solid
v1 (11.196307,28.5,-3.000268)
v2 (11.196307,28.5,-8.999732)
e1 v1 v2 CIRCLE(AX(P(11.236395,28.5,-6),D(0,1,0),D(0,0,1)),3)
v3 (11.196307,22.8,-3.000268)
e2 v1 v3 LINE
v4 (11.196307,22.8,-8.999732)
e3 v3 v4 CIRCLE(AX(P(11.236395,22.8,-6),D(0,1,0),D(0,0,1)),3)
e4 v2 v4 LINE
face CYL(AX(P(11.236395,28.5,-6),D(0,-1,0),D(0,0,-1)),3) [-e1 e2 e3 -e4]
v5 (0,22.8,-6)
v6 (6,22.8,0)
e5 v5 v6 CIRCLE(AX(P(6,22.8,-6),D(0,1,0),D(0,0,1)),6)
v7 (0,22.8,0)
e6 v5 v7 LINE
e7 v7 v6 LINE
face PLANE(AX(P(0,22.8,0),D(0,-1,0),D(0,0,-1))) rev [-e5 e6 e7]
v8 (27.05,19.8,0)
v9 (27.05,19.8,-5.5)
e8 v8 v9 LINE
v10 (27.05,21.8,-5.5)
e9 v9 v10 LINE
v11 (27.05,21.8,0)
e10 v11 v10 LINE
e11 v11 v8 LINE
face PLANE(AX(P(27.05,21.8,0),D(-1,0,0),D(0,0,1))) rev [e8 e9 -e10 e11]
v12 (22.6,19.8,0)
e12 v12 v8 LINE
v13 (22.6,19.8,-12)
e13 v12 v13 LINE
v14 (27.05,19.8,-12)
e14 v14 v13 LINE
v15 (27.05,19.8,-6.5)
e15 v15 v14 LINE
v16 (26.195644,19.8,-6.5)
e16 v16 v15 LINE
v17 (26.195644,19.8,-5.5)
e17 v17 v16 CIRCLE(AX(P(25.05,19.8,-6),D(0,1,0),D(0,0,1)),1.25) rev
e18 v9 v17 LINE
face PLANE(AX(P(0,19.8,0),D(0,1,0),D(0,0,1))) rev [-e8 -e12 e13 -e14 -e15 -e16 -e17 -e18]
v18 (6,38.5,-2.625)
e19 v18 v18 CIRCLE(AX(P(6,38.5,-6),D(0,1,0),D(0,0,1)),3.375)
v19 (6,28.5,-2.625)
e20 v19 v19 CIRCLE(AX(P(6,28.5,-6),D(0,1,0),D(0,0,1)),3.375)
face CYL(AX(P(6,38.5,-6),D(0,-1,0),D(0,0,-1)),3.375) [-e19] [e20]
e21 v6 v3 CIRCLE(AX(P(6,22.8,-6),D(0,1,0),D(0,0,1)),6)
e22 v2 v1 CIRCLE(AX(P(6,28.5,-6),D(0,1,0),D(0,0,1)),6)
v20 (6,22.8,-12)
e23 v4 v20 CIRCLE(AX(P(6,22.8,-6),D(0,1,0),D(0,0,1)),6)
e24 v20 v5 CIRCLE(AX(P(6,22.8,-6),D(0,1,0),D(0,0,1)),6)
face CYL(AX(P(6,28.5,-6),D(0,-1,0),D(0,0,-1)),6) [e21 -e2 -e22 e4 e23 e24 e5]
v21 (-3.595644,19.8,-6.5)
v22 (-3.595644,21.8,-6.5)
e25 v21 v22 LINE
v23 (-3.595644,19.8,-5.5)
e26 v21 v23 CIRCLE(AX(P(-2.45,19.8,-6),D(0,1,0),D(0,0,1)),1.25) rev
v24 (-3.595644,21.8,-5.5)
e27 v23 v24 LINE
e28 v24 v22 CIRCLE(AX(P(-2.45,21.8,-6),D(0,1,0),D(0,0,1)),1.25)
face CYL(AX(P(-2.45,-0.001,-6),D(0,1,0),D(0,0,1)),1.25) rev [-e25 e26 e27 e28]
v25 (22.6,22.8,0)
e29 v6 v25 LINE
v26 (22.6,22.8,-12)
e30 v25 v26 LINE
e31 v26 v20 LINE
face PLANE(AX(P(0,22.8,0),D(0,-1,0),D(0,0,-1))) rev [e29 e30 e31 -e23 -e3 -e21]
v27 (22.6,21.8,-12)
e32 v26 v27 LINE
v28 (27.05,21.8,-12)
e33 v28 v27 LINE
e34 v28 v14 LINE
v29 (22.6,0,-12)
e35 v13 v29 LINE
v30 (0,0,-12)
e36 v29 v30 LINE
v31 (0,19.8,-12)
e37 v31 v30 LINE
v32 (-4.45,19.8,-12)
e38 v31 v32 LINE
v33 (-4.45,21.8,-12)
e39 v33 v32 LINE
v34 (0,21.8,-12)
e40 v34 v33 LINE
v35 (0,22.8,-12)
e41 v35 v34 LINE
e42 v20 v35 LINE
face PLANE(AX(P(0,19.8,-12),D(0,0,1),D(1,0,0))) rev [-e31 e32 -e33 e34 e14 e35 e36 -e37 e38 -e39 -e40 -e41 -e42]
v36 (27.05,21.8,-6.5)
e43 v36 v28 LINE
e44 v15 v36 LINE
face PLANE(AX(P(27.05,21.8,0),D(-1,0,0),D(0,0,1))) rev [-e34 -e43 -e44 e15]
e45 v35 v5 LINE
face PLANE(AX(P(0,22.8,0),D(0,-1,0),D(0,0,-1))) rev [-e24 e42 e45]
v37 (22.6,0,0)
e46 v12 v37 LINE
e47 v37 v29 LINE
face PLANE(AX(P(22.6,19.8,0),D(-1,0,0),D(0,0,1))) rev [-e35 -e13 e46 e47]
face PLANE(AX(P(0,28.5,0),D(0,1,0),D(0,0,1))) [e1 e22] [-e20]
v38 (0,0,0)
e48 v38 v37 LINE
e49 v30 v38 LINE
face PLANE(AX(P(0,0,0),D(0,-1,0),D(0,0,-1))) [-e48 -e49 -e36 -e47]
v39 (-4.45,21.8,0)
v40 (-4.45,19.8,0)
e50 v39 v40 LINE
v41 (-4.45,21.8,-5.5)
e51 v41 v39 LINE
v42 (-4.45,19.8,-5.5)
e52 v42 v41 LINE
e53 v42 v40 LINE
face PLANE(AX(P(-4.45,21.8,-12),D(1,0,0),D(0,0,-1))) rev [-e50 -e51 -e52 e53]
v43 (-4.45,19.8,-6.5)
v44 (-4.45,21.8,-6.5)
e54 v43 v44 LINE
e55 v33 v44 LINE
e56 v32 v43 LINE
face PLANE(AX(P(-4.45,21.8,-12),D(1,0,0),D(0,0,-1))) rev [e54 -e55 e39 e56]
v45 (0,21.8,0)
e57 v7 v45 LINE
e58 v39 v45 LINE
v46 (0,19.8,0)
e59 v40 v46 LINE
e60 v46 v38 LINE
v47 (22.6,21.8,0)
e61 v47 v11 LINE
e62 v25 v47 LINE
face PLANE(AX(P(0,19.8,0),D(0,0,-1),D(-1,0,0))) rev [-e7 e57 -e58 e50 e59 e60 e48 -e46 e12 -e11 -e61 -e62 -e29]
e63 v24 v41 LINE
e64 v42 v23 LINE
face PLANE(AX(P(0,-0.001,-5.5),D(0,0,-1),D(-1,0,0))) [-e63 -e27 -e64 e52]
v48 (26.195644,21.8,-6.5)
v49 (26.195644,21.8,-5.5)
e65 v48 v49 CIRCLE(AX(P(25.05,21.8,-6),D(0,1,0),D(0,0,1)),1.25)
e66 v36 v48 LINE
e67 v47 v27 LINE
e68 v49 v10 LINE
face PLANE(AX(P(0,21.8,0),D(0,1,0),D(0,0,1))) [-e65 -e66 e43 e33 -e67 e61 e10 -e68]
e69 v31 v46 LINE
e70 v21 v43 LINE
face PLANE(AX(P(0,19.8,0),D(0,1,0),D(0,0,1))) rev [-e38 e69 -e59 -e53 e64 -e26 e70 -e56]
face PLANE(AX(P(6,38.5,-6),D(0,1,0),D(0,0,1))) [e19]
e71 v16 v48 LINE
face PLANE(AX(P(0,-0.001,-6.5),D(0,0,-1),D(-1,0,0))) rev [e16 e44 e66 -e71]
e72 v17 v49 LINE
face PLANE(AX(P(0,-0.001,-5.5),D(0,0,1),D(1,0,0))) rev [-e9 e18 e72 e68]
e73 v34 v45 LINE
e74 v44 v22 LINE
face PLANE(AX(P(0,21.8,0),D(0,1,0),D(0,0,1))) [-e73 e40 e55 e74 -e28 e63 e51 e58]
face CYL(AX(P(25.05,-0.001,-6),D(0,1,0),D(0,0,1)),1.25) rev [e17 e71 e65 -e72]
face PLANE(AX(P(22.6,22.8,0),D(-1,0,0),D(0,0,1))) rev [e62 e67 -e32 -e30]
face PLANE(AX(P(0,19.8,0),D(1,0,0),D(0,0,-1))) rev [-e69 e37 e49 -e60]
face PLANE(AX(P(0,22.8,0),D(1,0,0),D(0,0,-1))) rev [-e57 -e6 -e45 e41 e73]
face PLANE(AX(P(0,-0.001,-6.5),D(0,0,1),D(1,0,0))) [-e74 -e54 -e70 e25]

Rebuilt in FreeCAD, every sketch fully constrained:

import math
import FreeCAD as App
import Part
import Sketcher

V = App.Vector
Q = App.Units.Quantity


def add_polygon(sketch, points):
    """Adds a closed chain of lines whose ends are joined by coincident constraints."""
    first, n = sketch.GeometryCount, len(points)
    for a, b in zip(points, points[1:] + points[:1]):
        sketch.addGeometry(Part.LineSegment(App.Vector(*a, 0), App.Vector(*b, 0)), False)
    for i in range(n):
        sketch.addConstraint(Sketcher.Constraint("Coincident", first + i, 2, first + (i + 1) % n, 1))

doc = App.newDocument("Part")
body = doc.addObject("PartDesign::Body", "Body")
body.AllowCompound = True

sketch1 = body.newObject("Sketcher::SketchObject", "Sketch")
sketch1.AttachmentSupport = (doc.getObject("XZ_Plane"), [""])
sketch1.MapMode = "FlatFace"
add_polygon(sketch1, [(0, -12), (0, 0), (23, 0), (23, -12)])
sketch1.addConstraint([
    Sketcher.Constraint("Vertical", 0),
    Sketcher.Constraint("Horizontal", 1),
    Sketcher.Constraint("Vertical", 2),
    Sketcher.Constraint("Horizontal", 3),
    Sketcher.Constraint("Coincident", 0, 2, -1, 1),
    Sketcher.Constraint("DistanceY", 0, 1, 0, 2, Q("12 mm")),
    Sketcher.Constraint("DistanceX", 1, 1, 1, 2, Q("22.6 mm")),
])
pad1 = body.newObject("PartDesign::Pad", "Pad")
pad1.Profile = sketch1
pad1.Length = 19.8
pad1.Reversed = True

sketch2 = body.newObject("Sketcher::SketchObject", "Sketch001")
sketch2.AttachmentSupport = (doc.getObject("XZ_Plane"), [""])
sketch2.MapMode = "FlatFace"
sketch2.AttachmentOffset = App.Placement(V(0, 0, -19.8), App.Rotation())
add_polygon(sketch2, [(-4, -12), (-4, 0), (27, 0), (27, -12)])
sketch2.addConstraint([
    Sketcher.Constraint("Vertical", 0),
    Sketcher.Constraint("Horizontal", 1),
    Sketcher.Constraint("Vertical", 2),
    Sketcher.Constraint("Horizontal", 3),
    Sketcher.Constraint("PointOnObject", 0, 2, -1),
    Sketcher.Constraint("DistanceY", 0, 1, 0, 2, Q("12 mm")),
    Sketcher.Constraint("DistanceX", 1, 1, 1, 2, Q("31.5 mm")),
    Sketcher.Constraint("DistanceX", 0, 2, -1, 1, Q("4.45 mm")),
])
pad2 = body.newObject("PartDesign::Pad", "Pad001")
pad2.Profile = sketch2
pad2.Length = 2
pad2.Reversed = True

sketch3 = body.newObject("Sketcher::SketchObject", "Sketch002")
sketch3.AttachmentSupport = (doc.getObject("XZ_Plane"), [""])
sketch3.MapMode = "FlatFace"
sketch3.AttachmentOffset = App.Placement(V(0, 0, -21.8), App.Rotation())
add_polygon(sketch3, [(0, -12), (0, 0), (23, 0), (23, -12)])
sketch3.addConstraint([
    Sketcher.Constraint("Vertical", 0),
    Sketcher.Constraint("Horizontal", 1),
    Sketcher.Constraint("Vertical", 2),
    Sketcher.Constraint("Horizontal", 3),
    Sketcher.Constraint("Coincident", 0, 2, -1, 1),
    Sketcher.Constraint("DistanceY", 0, 1, 0, 2, Q("12 mm")),
    Sketcher.Constraint("DistanceX", 1, 1, 1, 2, Q("22.6 mm")),
])
pad3 = body.newObject("PartDesign::Pad", "Pad002")
pad3.Profile = sketch3
pad3.Length = 1
pad3.Reversed = True

sketch4 = body.newObject("Sketcher::SketchObject", "Sketch003")
sketch4.AttachmentSupport = (doc.getObject("XZ_Plane"), [""])
sketch4.MapMode = "FlatFace"
sketch4.AttachmentOffset = App.Placement(V(0, 0, -22.8), App.Rotation())
sketch4.addGeometry([
    Part.ArcOfCircle(Part.Circle(V(6, -6, 0), V(0, 0, 1), 6), math.radians(30), math.radians(330)),
    Part.ArcOfCircle(Part.Circle(V(11.2, -6, 0), V(0, 0, 1), 3), math.radians(-91), math.radians(91)),
], False)
sketch4.addConstraint([
    Sketcher.Constraint("Coincident", 0, 1, 1, 2),
    Sketcher.Constraint("Coincident", 1, 1, 0, 2),
    Sketcher.Constraint("Horizontal", 0, 3, 1, 3),
    Sketcher.Constraint("Radius", 0, Q("6 mm")),
    Sketcher.Constraint("Radius", 1, Q("3 mm")),
    Sketcher.Constraint("DistanceX", -1, 1, 0, 3, Q("6 mm")),
    Sketcher.Constraint("DistanceY", 0, 3, -1, 1, Q("6 mm")),
    Sketcher.Constraint("DistanceX", 0, 1, 1, 3, Q("0.040088 mm")),
])
pad4 = body.newObject("PartDesign::Pad", "Pad003")
pad4.Profile = sketch4
pad4.Length = 5.7
pad4.Reversed = True

sketch5 = body.newObject("Sketcher::SketchObject", "Sketch004")
sketch5.AttachmentSupport = (doc.getObject("XZ_Plane"), [""])
sketch5.MapMode = "FlatFace"
sketch5.AttachmentOffset = App.Placement(V(0, 0, -28.5), App.Rotation())
sketch5.addGeometry(Part.Circle(V(6, -6, 0), V(0, 0, 1), 3.4), False)
sketch5.addConstraint([
    Sketcher.Constraint("Diameter", 0, Q("6.75 mm")),
    Sketcher.Constraint("DistanceX", -1, 1, 0, 3, Q("6 mm")),
    Sketcher.Constraint("DistanceY", 0, 3, -1, 1, Q("6 mm")),
])
pad5 = body.newObject("PartDesign::Pad", "Pad004")
pad5.Profile = sketch5
pad5.Length = 10
pad5.Reversed = True

sketch6 = body.newObject("Sketcher::SketchObject", "Sketch005")
sketch6.AttachmentSupport = (doc.getObject("XZ_Plane"), [""])
sketch6.MapMode = "FlatFace"
sketch6.AttachmentOffset = App.Placement(V(0, 0, -21.8), App.Rotation())
sketch6.addGeometry([
    Part.LineSegment(V(-4.5, -5.5, 0), V(-3.6, -5.5, 0)),
    Part.ArcOfCircle(Part.Circle(V(-2.4, -6, 0), V(0, 0, 1), 1.3), math.radians(156), math.radians(180)),
    Part.LineSegment(V(-3.7, -6, 0), V(-4.5, -6, 0)),
    Part.LineSegment(V(-4.5, -6, 0), V(-4.5, -5.5, 0)),
], False)
sketch6.addConstraint([
    Sketcher.Constraint("Coincident", 0, 2, 1, 1),
    Sketcher.Constraint("Coincident", 1, 2, 2, 1),
    Sketcher.Constraint("Coincident", 2, 2, 3, 1),
    Sketcher.Constraint("Coincident", 3, 2, 0, 1),
    Sketcher.Constraint("Horizontal", 0),
    Sketcher.Constraint("Horizontal", 2),
    Sketcher.Constraint("Vertical", 3),
    Sketcher.Constraint("Radius", 1, Q("1.25 mm")),
    Sketcher.Constraint("DistanceY", 3, 1, 3, 2, Q("0.5 mm")),
    Sketcher.Constraint("DistanceY", 1, 3, -1, 1, Q("6 mm")),
    Sketcher.Constraint("DistanceY", 1, 2, -1, 1, Q("6 mm")),
    Sketcher.Constraint("DistanceX", 2, 2, 1, 3, Q("2 mm")),
    Sketcher.Constraint("DistanceX", 1, 2, -1, 1, Q("3.7 mm")),
])
pocket1 = body.newObject("PartDesign::Pocket", "Pocket")
pocket1.Profile = sketch6
pocket1.Type = "UpToFirst"
pocket1.Reversed = True

sketch7 = body.newObject("Sketcher::SketchObject", "Sketch006")
sketch7.AttachmentSupport = (doc.getObject("XZ_Plane"), [""])
sketch7.MapMode = "FlatFace"
sketch7.AttachmentOffset = App.Placement(V(0, 0, -21.8), App.Rotation())
sketch7.addGeometry([
    Part.ArcOfCircle(Part.Circle(V(-2.4, -6, 0), V(0, 0, 1), 1.3), math.radians(-180), math.radians(-156)),
    Part.LineSegment(V(-3.6, -6.5, 0), V(-4.5, -6.5, 0)),
    Part.LineSegment(V(-4.5, -6.5, 0), V(-4.5, -6, 0)),
    Part.LineSegment(V(-4.5, -6, 0), V(-3.7, -6, 0)),
], False)
sketch7.addConstraint([
    Sketcher.Constraint("Coincident", 0, 2, 1, 1),
    Sketcher.Constraint("Coincident", 1, 2, 2, 1),
    Sketcher.Constraint("Coincident", 2, 2, 3, 1),
    Sketcher.Constraint("Coincident", 3, 2, 0, 1),
    Sketcher.Constraint("Horizontal", 1),
    Sketcher.Constraint("Vertical", 2),
    Sketcher.Constraint("Horizontal", 3),
    Sketcher.Constraint("Horizontal", 0, 3, 2, 2),
    Sketcher.Constraint("Radius", 0, Q("1.25 mm")),
    Sketcher.Constraint("DistanceY", 2, 1, 2, 2, Q("0.5 mm")),
    Sketcher.Constraint("DistanceY", 0, 3, -1, 1, Q("6 mm")),
    Sketcher.Constraint("DistanceX", 1, 2, 0, 3, Q("2 mm")),
    Sketcher.Constraint("DistanceX", 3, 2, -1, 1, Q("3.7 mm")),
])
pocket2 = body.newObject("PartDesign::Pocket", "Pocket001")
pocket2.Profile = sketch7
pocket2.Type = "UpToFirst"
pocket2.Reversed = True

sketch8 = body.newObject("Sketcher::SketchObject", "Sketch007")
sketch8.AttachmentSupport = (doc.getObject("XZ_Plane"), [""])
sketch8.MapMode = "FlatFace"
sketch8.AttachmentOffset = App.Placement(V(0, 0, -21.8), App.Rotation())
sketch8.addGeometry([
    Part.ArcOfCircle(Part.Circle(V(-2.5, -6, 0), V(0, 0, 1), 1.2), math.radians(0), math.radians(156)),
    Part.LineSegment(V(-1.2, -6, 0), V(-2.4, -6, 0)),
    Part.LineSegment(V(-2.4, -6, 0), V(-2.4, -5.5, 0)),
    Part.LineSegment(V(-2.4, -5.5, 0), V(-3.6, -5.5, 0)),
], False)
sketch8.addConstraint([
    Sketcher.Constraint("Coincident", 0, 1, 1, 1),
    Sketcher.Constraint("Coincident", 1, 2, 2, 1),
    Sketcher.Constraint("Coincident", 2, 2, 3, 1),
    Sketcher.Constraint("Coincident", 3, 2, 0, 2),
    Sketcher.Constraint("Horizontal", 1),
    Sketcher.Constraint("Vertical", 2),
    Sketcher.Constraint("Horizontal", 3),
    Sketcher.Constraint("Radius", 0, Q("1.25 mm")),
    Sketcher.Constraint("DistanceY", 2, 1, 2, 2, Q("0.5 mm")),
    Sketcher.Constraint("DistanceY", 0, 3, -1, 1, Q("6 mm")),
    Sketcher.Constraint("DistanceY", 0, 1, -1, 1, Q("6 mm")),
    Sketcher.Constraint("DistanceX", 0, 1, -1, 1, Q("1.2 mm")),
    Sketcher.Constraint("DistanceX", 3, 2, 3, 1, Q("1.146561 mm")),
])
pocket3 = body.newObject("PartDesign::Pocket", "Pocket002")
pocket3.Profile = sketch8
pocket3.Type = "UpToFirst"
pocket3.Reversed = True

sketch9 = body.newObject("Sketcher::SketchObject", "Sketch008")
sketch9.AttachmentSupport = (doc.getObject("XZ_Plane"), [""])
sketch9.MapMode = "FlatFace"
sketch9.AttachmentOffset = App.Placement(V(0, 0, -21.8), App.Rotation())
sketch9.addGeometry([
    Part.LineSegment(V(-2.4, -5.5, 0), V(-2.4, -6, 0)),
    Part.LineSegment(V(-2.4, -6, 0), V(-3.7, -6, 0)),
    Part.ArcOfCircle(Part.Circle(V(-2.4, -6, 0), V(0, 0, 1), 1.3), math.radians(156), math.radians(180)),
    Part.LineSegment(V(-3.6, -5.5, 0), V(-2.4, -5.5, 0)),
], False)
sketch9.addConstraint([
    Sketcher.Constraint("Coincident", 0, 2, 1, 1),
    Sketcher.Constraint("Coincident", 1, 2, 2, 2),
    Sketcher.Constraint("Coincident", 2, 1, 3, 1),
    Sketcher.Constraint("Coincident", 3, 2, 0, 1),
    Sketcher.Constraint("Vertical", 0),
    Sketcher.Constraint("Horizontal", 1),
    Sketcher.Constraint("Horizontal", 3),
    Sketcher.Constraint("Horizontal", 2, 3, 0, 2),
    Sketcher.Constraint("Radius", 2, Q("1.25 mm")),
    Sketcher.Constraint("DistanceY", 0, 2, 0, 1, Q("0.5 mm")),
    Sketcher.Constraint("DistanceY", 2, 3, -1, 1, Q("6 mm")),
    Sketcher.Constraint("DistanceX", 1, 2, -1, 1, Q("3.7 mm")),
    Sketcher.Constraint("DistanceX", 3, 1, 3, 2, Q("1.146561 mm")),
])
pocket4 = body.newObject("PartDesign::Pocket", "Pocket003")
pocket4.Profile = sketch9
pocket4.Type = "UpToFirst"
pocket4.Reversed = True

sketch10 = body.newObject("Sketcher::SketchObject", "Sketch009")
sketch10.AttachmentSupport = (doc.getObject("XZ_Plane"), [""])
sketch10.MapMode = "FlatFace"
sketch10.AttachmentOffset = App.Placement(V(0, 0, -21.8), App.Rotation())
sketch10.addGeometry([
    Part.LineSegment(V(-2.4, -6, 0), V(-1.2, -6, 0)),
    Part.ArcOfCircle(Part.Circle(V(-2.5, -6, 0), V(0, 0, 1), 1.2), math.radians(-156), math.radians(0)),
    Part.LineSegment(V(-3.6, -6.5, 0), V(-2.4, -6.5, 0)),
    Part.LineSegment(V(-2.4, -6.5, 0), V(-2.4, -6, 0)),
], False)
sketch10.addConstraint([
    Sketcher.Constraint("Coincident", 0, 2, 1, 2),
    Sketcher.Constraint("Coincident", 1, 1, 2, 1),
    Sketcher.Constraint("Coincident", 2, 2, 3, 1),
    Sketcher.Constraint("Coincident", 3, 2, 0, 1),
    Sketcher.Constraint("Horizontal", 0),
    Sketcher.Constraint("Horizontal", 2),
    Sketcher.Constraint("Vertical", 3),
    Sketcher.Constraint("Horizontal", 1, 3, 0, 2),
    Sketcher.Constraint("Radius", 1, Q("1.25 mm")),
    Sketcher.Constraint("DistanceY", 3, 1, 3, 2, Q("0.5 mm")),
    Sketcher.Constraint("DistanceY", 1, 3, -1, 1, Q("6 mm")),
    Sketcher.Constraint("DistanceX", 0, 2, -1, 1, Q("1.2 mm")),
    Sketcher.Constraint("DistanceX", 2, 1, 2, 2, Q("1.146561 mm")),
])
pocket5 = body.newObject("PartDesign::Pocket", "Pocket004")
pocket5.Profile = sketch10
pocket5.Type = "UpToFirst"
pocket5.Reversed = True

sketch11 = body.newObject("Sketcher::SketchObject", "Sketch010")
sketch11.AttachmentSupport = (doc.getObject("XZ_Plane"), [""])
sketch11.MapMode = "FlatFace"
sketch11.AttachmentOffset = App.Placement(V(0, 0, -21.8), App.Rotation())
sketch11.addGeometry([
    Part.LineSegment(V(-3.7, -6, 0), V(-2.4, -6, 0)),
    Part.LineSegment(V(-2.4, -6, 0), V(-2.4, -6.5, 0)),
    Part.LineSegment(V(-2.4, -6.5, 0), V(-3.6, -6.5, 0)),
    Part.ArcOfCircle(Part.Circle(V(-2.4, -6, 0), V(0, 0, 1), 1.3), math.radians(-180), math.radians(-156)),
], False)
sketch11.addConstraint([
    Sketcher.Constraint("Coincident", 0, 2, 1, 1),
    Sketcher.Constraint("Coincident", 1, 2, 2, 1),
    Sketcher.Constraint("Coincident", 2, 2, 3, 2),
    Sketcher.Constraint("Coincident", 3, 1, 0, 1),
    Sketcher.Constraint("Horizontal", 0),
    Sketcher.Constraint("Vertical", 1),
    Sketcher.Constraint("Horizontal", 2),
    Sketcher.Constraint("Horizontal", 3, 3, 0, 2),
    Sketcher.Constraint("Radius", 3, Q("1.25 mm")),
    Sketcher.Constraint("DistanceY", 1, 2, 1, 1, Q("0.5 mm")),
    Sketcher.Constraint("DistanceY", 3, 3, -1, 1, Q("6 mm")),
    Sketcher.Constraint("DistanceX", 3, 1, -1, 1, Q("3.7 mm")),
    Sketcher.Constraint("DistanceX", 2, 2, 2, 1, Q("1.146561 mm")),
])
pocket6 = body.newObject("PartDesign::Pocket", "Pocket005")
pocket6.Profile = sketch11
pocket6.Type = "UpToFirst"
pocket6.Reversed = True

sketch12 = body.newObject("Sketcher::SketchObject", "Sketch011")
sketch12.AttachmentSupport = (doc.getObject("XZ_Plane"), [""])
sketch12.MapMode = "FlatFace"
sketch12.AttachmentOffset = App.Placement(V(0, 0, -21.8), App.Rotation())
sketch12.addGeometry([
    Part.ArcOfCircle(Part.Circle(V(-2.5, -6, 0), V(0, 0, 1), 1.2), math.radians(0), math.radians(156)),
    Part.LineSegment(V(-1.2, -6, 0), V(-2.4, -6, 0)),
    Part.LineSegment(V(-2.4, -6, 0), V(-2.4, -5.5, 0)),
    Part.LineSegment(V(-2.4, -5.5, 0), V(-3.6, -5.5, 0)),
], False)
sketch12.addConstraint([
    Sketcher.Constraint("Coincident", 0, 1, 1, 1),
    Sketcher.Constraint("Coincident", 1, 2, 2, 1),
    Sketcher.Constraint("Coincident", 2, 2, 3, 1),
    Sketcher.Constraint("Coincident", 3, 2, 0, 2),
    Sketcher.Constraint("Horizontal", 1),
    Sketcher.Constraint("Vertical", 2),
    Sketcher.Constraint("Horizontal", 3),
    Sketcher.Constraint("Radius", 0, Q("1.25 mm")),
    Sketcher.Constraint("DistanceY", 2, 1, 2, 2, Q("0.5 mm")),
    Sketcher.Constraint("DistanceY", 0, 3, -1, 1, Q("6 mm")),
    Sketcher.Constraint("DistanceY", 0, 1, -1, 1, Q("6 mm")),
    Sketcher.Constraint("DistanceX", 0, 1, -1, 1, Q("1.2 mm")),
    Sketcher.Constraint("DistanceX", 3, 2, 3, 1, Q("1.146561 mm")),
])
pocket7 = body.newObject("PartDesign::Pocket", "Pocket006")
pocket7.Profile = sketch12
pocket7.Length = 2
pocket7.Reversed = True

sketch13 = body.newObject("Sketcher::SketchObject", "Sketch012")
sketch13.AttachmentSupport = (doc.getObject("XZ_Plane"), [""])
sketch13.MapMode = "FlatFace"
sketch13.AttachmentOffset = App.Placement(V(0, 0, -21.8), App.Rotation())
sketch13.addGeometry([
    Part.LineSegment(V(-2.4, -5.5, 0), V(-2.4, -6, 0)),
    Part.LineSegment(V(-2.4, -6, 0), V(-3.7, -6, 0)),
    Part.ArcOfCircle(Part.Circle(V(-2.4, -6, 0), V(0, 0, 1), 1.3), math.radians(156), math.radians(180)),
    Part.LineSegment(V(-3.6, -5.5, 0), V(-2.4, -5.5, 0)),
], False)
sketch13.addConstraint([
    Sketcher.Constraint("Coincident", 0, 2, 1, 1),
    Sketcher.Constraint("Coincident", 1, 2, 2, 2),
    Sketcher.Constraint("Coincident", 2, 1, 3, 1),
    Sketcher.Constraint("Coincident", 3, 2, 0, 1),
    Sketcher.Constraint("Vertical", 0),
    Sketcher.Constraint("Horizontal", 1),
    Sketcher.Constraint("Horizontal", 3),
    Sketcher.Constraint("Horizontal", 2, 3, 0, 2),
    Sketcher.Constraint("Radius", 2, Q("1.25 mm")),
    Sketcher.Constraint("DistanceY", 0, 2, 0, 1, Q("0.5 mm")),
    Sketcher.Constraint("DistanceY", 2, 3, -1, 1, Q("6 mm")),
    Sketcher.Constraint("DistanceX", 1, 2, -1, 1, Q("3.7 mm")),
    Sketcher.Constraint("DistanceX", 3, 1, 3, 2, Q("1.146561 mm")),
])
pocket8 = body.newObject("PartDesign::Pocket", "Pocket007")
pocket8.Profile = sketch13
pocket8.Length = 2
pocket8.Reversed = True

sketch14 = body.newObject("Sketcher::SketchObject", "Sketch013")
sketch14.AttachmentSupport = (doc.getObject("XZ_Plane"), [""])
sketch14.MapMode = "FlatFace"
sketch14.AttachmentOffset = App.Placement(V(0, 0, -21.8), App.Rotation())
sketch14.addGeometry([
    Part.LineSegment(V(-2.4, -6, 0), V(-1.2, -6, 0)),
    Part.ArcOfCircle(Part.Circle(V(-2.5, -6, 0), V(0, 0, 1), 1.2), math.radians(-156), math.radians(0)),
    Part.LineSegment(V(-3.6, -6.5, 0), V(-2.4, -6.5, 0)),
    Part.LineSegment(V(-2.4, -6.5, 0), V(-2.4, -6, 0)),
], False)
sketch14.addConstraint([
    Sketcher.Constraint("Coincident", 0, 2, 1, 2),
    Sketcher.Constraint("Coincident", 1, 1, 2, 1),
    Sketcher.Constraint("Coincident", 2, 2, 3, 1),
    Sketcher.Constraint("Coincident", 3, 2, 0, 1),
    Sketcher.Constraint("Horizontal", 0),
    Sketcher.Constraint("Horizontal", 2),
    Sketcher.Constraint("Vertical", 3),
    Sketcher.Constraint("Horizontal", 1, 3, 0, 2),
    Sketcher.Constraint("Radius", 1, Q("1.25 mm")),
    Sketcher.Constraint("DistanceY", 3, 1, 3, 2, Q("0.5 mm")),
    Sketcher.Constraint("DistanceY", 1, 3, -1, 1, Q("6 mm")),
    Sketcher.Constraint("DistanceX", 0, 2, -1, 1, Q("1.2 mm")),
    Sketcher.Constraint("DistanceX", 2, 1, 2, 2, Q("1.146561 mm")),
])
pocket9 = body.newObject("PartDesign::Pocket", "Pocket008")
pocket9.Profile = sketch14
pocket9.Length = 2
pocket9.Reversed = True

sketch15 = body.newObject("Sketcher::SketchObject", "Sketch014")
sketch15.AttachmentSupport = (doc.getObject("XZ_Plane"), [""])
sketch15.MapMode = "FlatFace"
sketch15.AttachmentOffset = App.Placement(V(0, 0, -21.8), App.Rotation())
sketch15.addGeometry([
    Part.LineSegment(V(-3.7, -6, 0), V(-2.4, -6, 0)),
    Part.LineSegment(V(-2.4, -6, 0), V(-2.4, -6.5, 0)),
    Part.LineSegment(V(-2.4, -6.5, 0), V(-3.6, -6.5, 0)),
    Part.ArcOfCircle(Part.Circle(V(-2.4, -6, 0), V(0, 0, 1), 1.3), math.radians(-180), math.radians(-156)),
], False)
sketch15.addConstraint([
    Sketcher.Constraint("Coincident", 0, 2, 1, 1),
    Sketcher.Constraint("Coincident", 1, 2, 2, 1),
    Sketcher.Constraint("Coincident", 2, 2, 3, 2),
    Sketcher.Constraint("Coincident", 3, 1, 0, 1),
    Sketcher.Constraint("Horizontal", 0),
    Sketcher.Constraint("Vertical", 1),
    Sketcher.Constraint("Horizontal", 2),
    Sketcher.Constraint("Horizontal", 3, 3, 0, 2),
    Sketcher.Constraint("Radius", 3, Q("1.25 mm")),
    Sketcher.Constraint("DistanceY", 1, 2, 1, 1, Q("0.5 mm")),
    Sketcher.Constraint("DistanceY", 3, 3, -1, 1, Q("6 mm")),
    Sketcher.Constraint("DistanceX", 3, 1, -1, 1, Q("3.7 mm")),
    Sketcher.Constraint("DistanceX", 2, 2, 2, 1, Q("1.146561 mm")),
])
pocket10 = body.newObject("PartDesign::Pocket", "Pocket009")
pocket10.Profile = sketch15
pocket10.Length = 2
pocket10.Reversed = True

sketch16 = body.newObject("Sketcher::SketchObject", "Sketch015")
sketch16.AttachmentSupport = (doc.getObject("XZ_Plane"), [""])
sketch16.MapMode = "FlatFace"
sketch16.AttachmentOffset = App.Placement(V(0, 0, -21.8), App.Rotation())
sketch16.addGeometry([
    Part.ArcOfCircle(Part.Circle(V(25, -6, 0), V(0, 0, 1), 1.3), math.radians(0), math.radians(24)),
    Part.LineSegment(V(26.3, -6, 0), V(25, -6, 0)),
    Part.LineSegment(V(25, -6, 0), V(25, -5.5, 0)),
    Part.LineSegment(V(25, -5.5, 0), V(26.2, -5.5, 0)),
], False)
sketch16.addConstraint([
    Sketcher.Constraint("Coincident", 0, 1, 1, 1),
    Sketcher.Constraint("Coincident", 1, 2, 2, 1),
    Sketcher.Constraint("Coincident", 2, 2, 3, 1),
    Sketcher.Constraint("Coincident", 3, 2, 0, 2),
    Sketcher.Constraint("Horizontal", 1),
    Sketcher.Constraint("Vertical", 2),
    Sketcher.Constraint("Horizontal", 3),
    Sketcher.Constraint("Radius", 0, Q("1.25 mm")),
    Sketcher.Constraint("DistanceY", 2, 1, 2, 2, Q("0.5 mm")),
    Sketcher.Constraint("DistanceY", 0, 3, -1, 1, Q("6 mm")),
    Sketcher.Constraint("DistanceY", 0, 1, -1, 1, Q("6 mm")),
    Sketcher.Constraint("DistanceX", -1, 1, 0, 1, Q("26.3 mm")),
    Sketcher.Constraint("DistanceX", 1, 2, 1, 1, Q("1.252443 mm")),
])
pocket11 = body.newObject("PartDesign::Pocket", "Pocket010")
pocket11.Profile = sketch16
pocket11.Type = "UpToFirst"
pocket11.Reversed = True

sketch17 = body.newObject("Sketcher::SketchObject", "Sketch016")
sketch17.AttachmentSupport = (doc.getObject("XZ_Plane"), [""])
sketch17.MapMode = "FlatFace"
sketch17.AttachmentOffset = App.Placement(V(0, 0, -21.8), App.Rotation())
sketch17.addGeometry([
    Part.LineSegment(V(25, -5.5, 0), V(25, -6, 0)),
    Part.LineSegment(V(25, -6, 0), V(23.8, -6, 0)),
    Part.ArcOfCircle(Part.Circle(V(25.1, -6, 0), V(0, 0, 1), 1.2), math.radians(24), math.radians(180)),
    Part.LineSegment(V(26.2, -5.5, 0), V(25, -5.5, 0)),
], False)
sketch17.addConstraint([
    Sketcher.Constraint("Coincident", 0, 2, 1, 1),
    Sketcher.Constraint("Coincident", 1, 2, 2, 2),
    Sketcher.Constraint("Coincident", 2, 1, 3, 1),
    Sketcher.Constraint("Coincident", 3, 2, 0, 1),
    Sketcher.Constraint("Vertical", 0),
    Sketcher.Constraint("Horizontal", 1),
    Sketcher.Constraint("Horizontal", 3),
    Sketcher.Constraint("Horizontal", 2, 3, 0, 2),
    Sketcher.Constraint("Radius", 2, Q("1.25 mm")),
    Sketcher.Constraint("DistanceY", 0, 2, 0, 1, Q("0.5 mm")),
    Sketcher.Constraint("DistanceY", 2, 3, -1, 1, Q("6 mm")),
    Sketcher.Constraint("DistanceX", -1, 1, 1, 2, Q("23.8 mm")),
    Sketcher.Constraint("DistanceX", 1, 2, 1, 1, Q("1.247557 mm")),
])
pocket12 = body.newObject("PartDesign::Pocket", "Pocket011")
pocket12.Profile = sketch17
pocket12.Type = "UpToFirst"
pocket12.Reversed = True

sketch18 = body.newObject("Sketcher::SketchObject", "Sketch017")
sketch18.AttachmentSupport = (doc.getObject("XZ_Plane"), [""])
sketch18.MapMode = "FlatFace"
sketch18.AttachmentOffset = App.Placement(V(0, 0, -21.8), App.Rotation())
sketch18.addGeometry([
    Part.ArcOfCircle(Part.Circle(V(25, -6, 0), V(0, 0, 1), 1.3), math.radians(0), math.radians(24)),
    Part.LineSegment(V(26.3, -6, 0), V(25, -6, 0)),
    Part.LineSegment(V(25, -6, 0), V(25, -5.5, 0)),
    Part.LineSegment(V(25, -5.5, 0), V(26.2, -5.5, 0)),
], False)
sketch18.addConstraint([
    Sketcher.Constraint("Coincident", 0, 1, 1, 1),
    Sketcher.Constraint("Coincident", 1, 2, 2, 1),
    Sketcher.Constraint("Coincident", 2, 2, 3, 1),
    Sketcher.Constraint("Coincident", 3, 2, 0, 2),
    Sketcher.Constraint("Horizontal", 1),
    Sketcher.Constraint("Vertical", 2),
    Sketcher.Constraint("Horizontal", 3),
    Sketcher.Constraint("Radius", 0, Q("1.25 mm")),
    Sketcher.Constraint("DistanceY", 2, 1, 2, 2, Q("0.5 mm")),
    Sketcher.Constraint("DistanceY", 0, 3, -1, 1, Q("6 mm")),
    Sketcher.Constraint("DistanceY", 0, 1, -1, 1, Q("6 mm")),
    Sketcher.Constraint("DistanceX", -1, 1, 0, 1, Q("26.3 mm")),
    Sketcher.Constraint("DistanceX", 1, 2, 1, 1, Q("1.252443 mm")),
])
pocket13 = body.newObject("PartDesign::Pocket", "Pocket012")
pocket13.Profile = sketch18
pocket13.Length = 2
pocket13.Reversed = True

sketch19 = body.newObject("Sketcher::SketchObject", "Sketch018")
sketch19.AttachmentSupport = (doc.getObject("XZ_Plane"), [""])
sketch19.MapMode = "FlatFace"
sketch19.AttachmentOffset = App.Placement(V(0, 0, -21.8), App.Rotation())
sketch19.addGeometry([
    Part.LineSegment(V(25, -5.5, 0), V(25, -6, 0)),
    Part.LineSegment(V(25, -6, 0), V(23.8, -6, 0)),
    Part.ArcOfCircle(Part.Circle(V(25.1, -6, 0), V(0, 0, 1), 1.2), math.radians(24), math.radians(180)),
    Part.LineSegment(V(26.2, -5.5, 0), V(25, -5.5, 0)),
], False)
sketch19.addConstraint([
    Sketcher.Constraint("Coincident", 0, 2, 1, 1),
    Sketcher.Constraint("Coincident", 1, 2, 2, 2),
    Sketcher.Constraint("Coincident", 2, 1, 3, 1),
    Sketcher.Constraint("Coincident", 3, 2, 0, 1),
    Sketcher.Constraint("Vertical", 0),
    Sketcher.Constraint("Horizontal", 1),
    Sketcher.Constraint("Horizontal", 3),
    Sketcher.Constraint("Horizontal", 2, 3, 0, 2),
    Sketcher.Constraint("Radius", 2, Q("1.25 mm")),
    Sketcher.Constraint("DistanceY", 0, 2, 0, 1, Q("0.5 mm")),
    Sketcher.Constraint("DistanceY", 2, 3, -1, 1, Q("6 mm")),
    Sketcher.Constraint("DistanceX", -1, 1, 1, 2, Q("23.8 mm")),
    Sketcher.Constraint("DistanceX", 1, 2, 1, 1, Q("1.247557 mm")),
])
pocket14 = body.newObject("PartDesign::Pocket", "Pocket013")
pocket14.Profile = sketch19
pocket14.Length = 2
pocket14.Reversed = True

sketch20 = body.newObject("Sketcher::SketchObject", "Sketch019")
sketch20.AttachmentSupport = (doc.getObject("XZ_Plane"), [""])
sketch20.MapMode = "FlatFace"
sketch20.AttachmentOffset = App.Placement(V(0, 0, -21.8), App.Rotation())
sketch20.addGeometry([
    Part.LineSegment(V(25, -6, 0), V(26.3, -6, 0)),
    Part.ArcOfCircle(Part.Circle(V(25, -6, 0), V(0, 0, 1), 1.3), math.radians(-24), math.radians(0)),
    Part.LineSegment(V(26.2, -6.5, 0), V(25, -6.5, 0)),
    Part.LineSegment(V(25, -6.5, 0), V(25, -6, 0)),
], False)
sketch20.addConstraint([
    Sketcher.Constraint("Coincident", 0, 2, 1, 2),
    Sketcher.Constraint("Coincident", 1, 1, 2, 1),
    Sketcher.Constraint("Coincident", 2, 2, 3, 1),
    Sketcher.Constraint("Coincident", 3, 2, 0, 1),
    Sketcher.Constraint("Horizontal", 0),
    Sketcher.Constraint("Horizontal", 2),
    Sketcher.Constraint("Vertical", 3),
    Sketcher.Constraint("Horizontal", 1, 3, 0, 2),
    Sketcher.Constraint("Radius", 1, Q("1.25 mm")),
    Sketcher.Constraint("DistanceY", 3, 1, 3, 2, Q("0.5 mm")),
    Sketcher.Constraint("DistanceY", 1, 3, -1, 1, Q("6 mm")),
    Sketcher.Constraint("DistanceX", -1, 1, 0, 2, Q("26.3 mm")),
    Sketcher.Constraint("DistanceX", 0, 1, 0, 2, Q("1.252443 mm")),
])
pocket15 = body.newObject("PartDesign::Pocket", "Pocket014")
pocket15.Profile = sketch20
pocket15.Type = "UpToFirst"
pocket15.Reversed = True

sketch21 = body.newObject("Sketcher::SketchObject", "Sketch020")
sketch21.AttachmentSupport = (doc.getObject("XZ_Plane"), [""])
sketch21.MapMode = "FlatFace"
sketch21.AttachmentOffset = App.Placement(V(0, 0, -21.8), App.Rotation())
sketch21.addGeometry([
    Part.LineSegment(V(23.8, -6, 0), V(25, -6, 0)),
    Part.LineSegment(V(25, -6, 0), V(25, -6.5, 0)),
    Part.LineSegment(V(25, -6.5, 0), V(26.2, -6.5, 0)),
    Part.ArcOfCircle(Part.Circle(V(25.1, -6, 0), V(0, 0, 1), 1.2), math.radians(180), math.radians(336)),
], False)
sketch21.addConstraint([
    Sketcher.Constraint("Coincident", 0, 2, 1, 1),
    Sketcher.Constraint("Coincident", 1, 2, 2, 1),
    Sketcher.Constraint("Coincident", 2, 2, 3, 2),
    Sketcher.Constraint("Coincident", 3, 1, 0, 1),
    Sketcher.Constraint("Horizontal", 0),
    Sketcher.Constraint("Vertical", 1),
    Sketcher.Constraint("Horizontal", 2),
    Sketcher.Constraint("Horizontal", 3, 3, 0, 2),
    Sketcher.Constraint("Radius", 3, Q("1.25 mm")),
    Sketcher.Constraint("DistanceY", 1, 2, 1, 1, Q("0.5 mm")),
    Sketcher.Constraint("DistanceY", 3, 3, -1, 1, Q("6 mm")),
    Sketcher.Constraint("DistanceX", -1, 1, 3, 1, Q("23.8 mm")),
    Sketcher.Constraint("DistanceX", 0, 1, 0, 2, Q("1.247557 mm")),
])
pocket16 = body.newObject("PartDesign::Pocket", "Pocket015")
pocket16.Profile = sketch21
pocket16.Type = "UpToFirst"
pocket16.Reversed = True

sketch22 = body.newObject("Sketcher::SketchObject", "Sketch021")
sketch22.AttachmentSupport = (doc.getObject("XZ_Plane"), [""])
sketch22.MapMode = "FlatFace"
sketch22.AttachmentOffset = App.Placement(V(0, 0, -21.8), App.Rotation())
sketch22.addGeometry([
    Part.LineSegment(V(25, -6, 0), V(26.3, -6, 0)),
    Part.ArcOfCircle(Part.Circle(V(25, -6, 0), V(0, 0, 1), 1.3), math.radians(-24), math.radians(0)),
    Part.LineSegment(V(26.2, -6.5, 0), V(25, -6.5, 0)),
    Part.LineSegment(V(25, -6.5, 0), V(25, -6, 0)),
], False)
sketch22.addConstraint([
    Sketcher.Constraint("Coincident", 0, 2, 1, 2),
    Sketcher.Constraint("Coincident", 1, 1, 2, 1),
    Sketcher.Constraint("Coincident", 2, 2, 3, 1),
    Sketcher.Constraint("Coincident", 3, 2, 0, 1),
    Sketcher.Constraint("Horizontal", 0),
    Sketcher.Constraint("Horizontal", 2),
    Sketcher.Constraint("Vertical", 3),
    Sketcher.Constraint("Horizontal", 1, 3, 0, 2),
    Sketcher.Constraint("Radius", 1, Q("1.25 mm")),
    Sketcher.Constraint("DistanceY", 3, 1, 3, 2, Q("0.5 mm")),
    Sketcher.Constraint("DistanceY", 1, 3, -1, 1, Q("6 mm")),
    Sketcher.Constraint("DistanceX", -1, 1, 0, 2, Q("26.3 mm")),
    Sketcher.Constraint("DistanceX", 0, 1, 0, 2, Q("1.252443 mm")),
])
pocket17 = body.newObject("PartDesign::Pocket", "Pocket016")
pocket17.Profile = sketch22
pocket17.Length = 2
pocket17.Reversed = True

sketch23 = body.newObject("Sketcher::SketchObject", "Sketch022")
sketch23.AttachmentSupport = (doc.getObject("XZ_Plane"), [""])
sketch23.MapMode = "FlatFace"
sketch23.AttachmentOffset = App.Placement(V(0, 0, -21.8), App.Rotation())
sketch23.addGeometry([
    Part.LineSegment(V(23.8, -6, 0), V(25, -6, 0)),
    Part.LineSegment(V(25, -6, 0), V(25, -6.5, 0)),
    Part.LineSegment(V(25, -6.5, 0), V(26.2, -6.5, 0)),
    Part.ArcOfCircle(Part.Circle(V(25.1, -6, 0), V(0, 0, 1), 1.2), math.radians(180), math.radians(336)),
], False)
sketch23.addConstraint([
    Sketcher.Constraint("Coincident", 0, 2, 1, 1),
    Sketcher.Constraint("Coincident", 1, 2, 2, 1),
    Sketcher.Constraint("Coincident", 2, 2, 3, 2),
    Sketcher.Constraint("Coincident", 3, 1, 0, 1),
    Sketcher.Constraint("Horizontal", 0),
    Sketcher.Constraint("Vertical", 1),
    Sketcher.Constraint("Horizontal", 2),
    Sketcher.Constraint("Horizontal", 3, 3, 0, 2),
    Sketcher.Constraint("Radius", 3, Q("1.25 mm")),
    Sketcher.Constraint("DistanceY", 1, 2, 1, 1, Q("0.5 mm")),
    Sketcher.Constraint("DistanceY", 3, 3, -1, 1, Q("6 mm")),
    Sketcher.Constraint("DistanceX", -1, 1, 3, 1, Q("23.8 mm")),
    Sketcher.Constraint("DistanceX", 0, 1, 0, 2, Q("1.247557 mm")),
])
pocket18 = body.newObject("PartDesign::Pocket", "Pocket017")
pocket18.Profile = sketch23
pocket18.Length = 2
pocket18.Reversed = True

sketch24 = body.newObject("Sketcher::SketchObject", "Sketch023")
sketch24.AttachmentSupport = (doc.getObject("XZ_Plane"), [""])
sketch24.MapMode = "FlatFace"
sketch24.AttachmentOffset = App.Placement(V(0, 0, -21.8), App.Rotation())
sketch24.addGeometry([
    Part.LineSegment(V(26.3, -6, 0), V(27.1, -6, 0)),
    Part.LineSegment(V(27.1, -6, 0), V(27.1, -6.5, 0)),
    Part.LineSegment(V(27.1, -6.5, 0), V(26.2, -6.5, 0)),
    Part.ArcOfCircle(Part.Circle(V(25, -6, 0), V(0, 0, 1), 1.3), math.radians(-24), math.radians(0)),
], False)
sketch24.addConstraint([
    Sketcher.Constraint("Coincident", 0, 2, 1, 1),
    Sketcher.Constraint("Coincident", 1, 2, 2, 1),
    Sketcher.Constraint("Coincident", 2, 2, 3, 1),
    Sketcher.Constraint("Coincident", 3, 2, 0, 1),
    Sketcher.Constraint("Horizontal", 0),
    Sketcher.Constraint("Vertical", 1),
    Sketcher.Constraint("Horizontal", 2),
    Sketcher.Constraint("Horizontal", 3, 3, 0, 2),
    Sketcher.Constraint("Radius", 3, Q("1.25 mm")),
    Sketcher.Constraint("DistanceY", 1, 2, 1, 1, Q("0.5 mm")),
    Sketcher.Constraint("DistanceY", 3, 3, -1, 1, Q("6 mm")),
    Sketcher.Constraint("DistanceX", 3, 3, 0, 2, Q("2 mm")),
    Sketcher.Constraint("DistanceX", -1, 1, 3, 2, Q("26.3 mm")),
])
pocket19 = body.newObject("PartDesign::Pocket", "Pocket018")
pocket19.Profile = sketch24
pocket19.Type = "UpToFirst"
pocket19.Reversed = True

sketch25 = body.newObject("Sketcher::SketchObject", "Sketch024")
sketch25.AttachmentSupport = (doc.getObject("XZ_Plane"), [""])
sketch25.MapMode = "FlatFace"
sketch25.AttachmentOffset = App.Placement(V(0, 0, -21.8), App.Rotation())
sketch25.addGeometry([
    Part.LineSegment(V(27.1, -5.5, 0), V(27.1, -6, 0)),
    Part.LineSegment(V(27.1, -6, 0), V(26.3, -6, 0)),
    Part.ArcOfCircle(Part.Circle(V(25, -6, 0), V(0, 0, 1), 1.3), math.radians(0), math.radians(24)),
    Part.LineSegment(V(26.2, -5.5, 0), V(27.1, -5.5, 0)),
], False)
sketch25.addConstraint([
    Sketcher.Constraint("Coincident", 0, 2, 1, 1),
    Sketcher.Constraint("Coincident", 1, 2, 2, 1),
    Sketcher.Constraint("Coincident", 2, 2, 3, 1),
    Sketcher.Constraint("Coincident", 3, 2, 0, 1),
    Sketcher.Constraint("Vertical", 0),
    Sketcher.Constraint("Horizontal", 1),
    Sketcher.Constraint("Horizontal", 3),
    Sketcher.Constraint("Horizontal", 2, 3, 0, 2),
    Sketcher.Constraint("Radius", 2, Q("1.25 mm")),
    Sketcher.Constraint("DistanceY", 0, 2, 0, 1, Q("0.5 mm")),
    Sketcher.Constraint("DistanceY", 2, 3, -1, 1, Q("6 mm")),
    Sketcher.Constraint("DistanceX", 2, 3, 0, 2, Q("2 mm")),
    Sketcher.Constraint("DistanceX", -1, 1, 1, 2, Q("26.3 mm")),
])
pocket20 = body.newObject("PartDesign::Pocket", "Pocket019")
pocket20.Profile = sketch25
pocket20.Type = "UpToFirst"
pocket20.Reversed = True

doc.recompute()
